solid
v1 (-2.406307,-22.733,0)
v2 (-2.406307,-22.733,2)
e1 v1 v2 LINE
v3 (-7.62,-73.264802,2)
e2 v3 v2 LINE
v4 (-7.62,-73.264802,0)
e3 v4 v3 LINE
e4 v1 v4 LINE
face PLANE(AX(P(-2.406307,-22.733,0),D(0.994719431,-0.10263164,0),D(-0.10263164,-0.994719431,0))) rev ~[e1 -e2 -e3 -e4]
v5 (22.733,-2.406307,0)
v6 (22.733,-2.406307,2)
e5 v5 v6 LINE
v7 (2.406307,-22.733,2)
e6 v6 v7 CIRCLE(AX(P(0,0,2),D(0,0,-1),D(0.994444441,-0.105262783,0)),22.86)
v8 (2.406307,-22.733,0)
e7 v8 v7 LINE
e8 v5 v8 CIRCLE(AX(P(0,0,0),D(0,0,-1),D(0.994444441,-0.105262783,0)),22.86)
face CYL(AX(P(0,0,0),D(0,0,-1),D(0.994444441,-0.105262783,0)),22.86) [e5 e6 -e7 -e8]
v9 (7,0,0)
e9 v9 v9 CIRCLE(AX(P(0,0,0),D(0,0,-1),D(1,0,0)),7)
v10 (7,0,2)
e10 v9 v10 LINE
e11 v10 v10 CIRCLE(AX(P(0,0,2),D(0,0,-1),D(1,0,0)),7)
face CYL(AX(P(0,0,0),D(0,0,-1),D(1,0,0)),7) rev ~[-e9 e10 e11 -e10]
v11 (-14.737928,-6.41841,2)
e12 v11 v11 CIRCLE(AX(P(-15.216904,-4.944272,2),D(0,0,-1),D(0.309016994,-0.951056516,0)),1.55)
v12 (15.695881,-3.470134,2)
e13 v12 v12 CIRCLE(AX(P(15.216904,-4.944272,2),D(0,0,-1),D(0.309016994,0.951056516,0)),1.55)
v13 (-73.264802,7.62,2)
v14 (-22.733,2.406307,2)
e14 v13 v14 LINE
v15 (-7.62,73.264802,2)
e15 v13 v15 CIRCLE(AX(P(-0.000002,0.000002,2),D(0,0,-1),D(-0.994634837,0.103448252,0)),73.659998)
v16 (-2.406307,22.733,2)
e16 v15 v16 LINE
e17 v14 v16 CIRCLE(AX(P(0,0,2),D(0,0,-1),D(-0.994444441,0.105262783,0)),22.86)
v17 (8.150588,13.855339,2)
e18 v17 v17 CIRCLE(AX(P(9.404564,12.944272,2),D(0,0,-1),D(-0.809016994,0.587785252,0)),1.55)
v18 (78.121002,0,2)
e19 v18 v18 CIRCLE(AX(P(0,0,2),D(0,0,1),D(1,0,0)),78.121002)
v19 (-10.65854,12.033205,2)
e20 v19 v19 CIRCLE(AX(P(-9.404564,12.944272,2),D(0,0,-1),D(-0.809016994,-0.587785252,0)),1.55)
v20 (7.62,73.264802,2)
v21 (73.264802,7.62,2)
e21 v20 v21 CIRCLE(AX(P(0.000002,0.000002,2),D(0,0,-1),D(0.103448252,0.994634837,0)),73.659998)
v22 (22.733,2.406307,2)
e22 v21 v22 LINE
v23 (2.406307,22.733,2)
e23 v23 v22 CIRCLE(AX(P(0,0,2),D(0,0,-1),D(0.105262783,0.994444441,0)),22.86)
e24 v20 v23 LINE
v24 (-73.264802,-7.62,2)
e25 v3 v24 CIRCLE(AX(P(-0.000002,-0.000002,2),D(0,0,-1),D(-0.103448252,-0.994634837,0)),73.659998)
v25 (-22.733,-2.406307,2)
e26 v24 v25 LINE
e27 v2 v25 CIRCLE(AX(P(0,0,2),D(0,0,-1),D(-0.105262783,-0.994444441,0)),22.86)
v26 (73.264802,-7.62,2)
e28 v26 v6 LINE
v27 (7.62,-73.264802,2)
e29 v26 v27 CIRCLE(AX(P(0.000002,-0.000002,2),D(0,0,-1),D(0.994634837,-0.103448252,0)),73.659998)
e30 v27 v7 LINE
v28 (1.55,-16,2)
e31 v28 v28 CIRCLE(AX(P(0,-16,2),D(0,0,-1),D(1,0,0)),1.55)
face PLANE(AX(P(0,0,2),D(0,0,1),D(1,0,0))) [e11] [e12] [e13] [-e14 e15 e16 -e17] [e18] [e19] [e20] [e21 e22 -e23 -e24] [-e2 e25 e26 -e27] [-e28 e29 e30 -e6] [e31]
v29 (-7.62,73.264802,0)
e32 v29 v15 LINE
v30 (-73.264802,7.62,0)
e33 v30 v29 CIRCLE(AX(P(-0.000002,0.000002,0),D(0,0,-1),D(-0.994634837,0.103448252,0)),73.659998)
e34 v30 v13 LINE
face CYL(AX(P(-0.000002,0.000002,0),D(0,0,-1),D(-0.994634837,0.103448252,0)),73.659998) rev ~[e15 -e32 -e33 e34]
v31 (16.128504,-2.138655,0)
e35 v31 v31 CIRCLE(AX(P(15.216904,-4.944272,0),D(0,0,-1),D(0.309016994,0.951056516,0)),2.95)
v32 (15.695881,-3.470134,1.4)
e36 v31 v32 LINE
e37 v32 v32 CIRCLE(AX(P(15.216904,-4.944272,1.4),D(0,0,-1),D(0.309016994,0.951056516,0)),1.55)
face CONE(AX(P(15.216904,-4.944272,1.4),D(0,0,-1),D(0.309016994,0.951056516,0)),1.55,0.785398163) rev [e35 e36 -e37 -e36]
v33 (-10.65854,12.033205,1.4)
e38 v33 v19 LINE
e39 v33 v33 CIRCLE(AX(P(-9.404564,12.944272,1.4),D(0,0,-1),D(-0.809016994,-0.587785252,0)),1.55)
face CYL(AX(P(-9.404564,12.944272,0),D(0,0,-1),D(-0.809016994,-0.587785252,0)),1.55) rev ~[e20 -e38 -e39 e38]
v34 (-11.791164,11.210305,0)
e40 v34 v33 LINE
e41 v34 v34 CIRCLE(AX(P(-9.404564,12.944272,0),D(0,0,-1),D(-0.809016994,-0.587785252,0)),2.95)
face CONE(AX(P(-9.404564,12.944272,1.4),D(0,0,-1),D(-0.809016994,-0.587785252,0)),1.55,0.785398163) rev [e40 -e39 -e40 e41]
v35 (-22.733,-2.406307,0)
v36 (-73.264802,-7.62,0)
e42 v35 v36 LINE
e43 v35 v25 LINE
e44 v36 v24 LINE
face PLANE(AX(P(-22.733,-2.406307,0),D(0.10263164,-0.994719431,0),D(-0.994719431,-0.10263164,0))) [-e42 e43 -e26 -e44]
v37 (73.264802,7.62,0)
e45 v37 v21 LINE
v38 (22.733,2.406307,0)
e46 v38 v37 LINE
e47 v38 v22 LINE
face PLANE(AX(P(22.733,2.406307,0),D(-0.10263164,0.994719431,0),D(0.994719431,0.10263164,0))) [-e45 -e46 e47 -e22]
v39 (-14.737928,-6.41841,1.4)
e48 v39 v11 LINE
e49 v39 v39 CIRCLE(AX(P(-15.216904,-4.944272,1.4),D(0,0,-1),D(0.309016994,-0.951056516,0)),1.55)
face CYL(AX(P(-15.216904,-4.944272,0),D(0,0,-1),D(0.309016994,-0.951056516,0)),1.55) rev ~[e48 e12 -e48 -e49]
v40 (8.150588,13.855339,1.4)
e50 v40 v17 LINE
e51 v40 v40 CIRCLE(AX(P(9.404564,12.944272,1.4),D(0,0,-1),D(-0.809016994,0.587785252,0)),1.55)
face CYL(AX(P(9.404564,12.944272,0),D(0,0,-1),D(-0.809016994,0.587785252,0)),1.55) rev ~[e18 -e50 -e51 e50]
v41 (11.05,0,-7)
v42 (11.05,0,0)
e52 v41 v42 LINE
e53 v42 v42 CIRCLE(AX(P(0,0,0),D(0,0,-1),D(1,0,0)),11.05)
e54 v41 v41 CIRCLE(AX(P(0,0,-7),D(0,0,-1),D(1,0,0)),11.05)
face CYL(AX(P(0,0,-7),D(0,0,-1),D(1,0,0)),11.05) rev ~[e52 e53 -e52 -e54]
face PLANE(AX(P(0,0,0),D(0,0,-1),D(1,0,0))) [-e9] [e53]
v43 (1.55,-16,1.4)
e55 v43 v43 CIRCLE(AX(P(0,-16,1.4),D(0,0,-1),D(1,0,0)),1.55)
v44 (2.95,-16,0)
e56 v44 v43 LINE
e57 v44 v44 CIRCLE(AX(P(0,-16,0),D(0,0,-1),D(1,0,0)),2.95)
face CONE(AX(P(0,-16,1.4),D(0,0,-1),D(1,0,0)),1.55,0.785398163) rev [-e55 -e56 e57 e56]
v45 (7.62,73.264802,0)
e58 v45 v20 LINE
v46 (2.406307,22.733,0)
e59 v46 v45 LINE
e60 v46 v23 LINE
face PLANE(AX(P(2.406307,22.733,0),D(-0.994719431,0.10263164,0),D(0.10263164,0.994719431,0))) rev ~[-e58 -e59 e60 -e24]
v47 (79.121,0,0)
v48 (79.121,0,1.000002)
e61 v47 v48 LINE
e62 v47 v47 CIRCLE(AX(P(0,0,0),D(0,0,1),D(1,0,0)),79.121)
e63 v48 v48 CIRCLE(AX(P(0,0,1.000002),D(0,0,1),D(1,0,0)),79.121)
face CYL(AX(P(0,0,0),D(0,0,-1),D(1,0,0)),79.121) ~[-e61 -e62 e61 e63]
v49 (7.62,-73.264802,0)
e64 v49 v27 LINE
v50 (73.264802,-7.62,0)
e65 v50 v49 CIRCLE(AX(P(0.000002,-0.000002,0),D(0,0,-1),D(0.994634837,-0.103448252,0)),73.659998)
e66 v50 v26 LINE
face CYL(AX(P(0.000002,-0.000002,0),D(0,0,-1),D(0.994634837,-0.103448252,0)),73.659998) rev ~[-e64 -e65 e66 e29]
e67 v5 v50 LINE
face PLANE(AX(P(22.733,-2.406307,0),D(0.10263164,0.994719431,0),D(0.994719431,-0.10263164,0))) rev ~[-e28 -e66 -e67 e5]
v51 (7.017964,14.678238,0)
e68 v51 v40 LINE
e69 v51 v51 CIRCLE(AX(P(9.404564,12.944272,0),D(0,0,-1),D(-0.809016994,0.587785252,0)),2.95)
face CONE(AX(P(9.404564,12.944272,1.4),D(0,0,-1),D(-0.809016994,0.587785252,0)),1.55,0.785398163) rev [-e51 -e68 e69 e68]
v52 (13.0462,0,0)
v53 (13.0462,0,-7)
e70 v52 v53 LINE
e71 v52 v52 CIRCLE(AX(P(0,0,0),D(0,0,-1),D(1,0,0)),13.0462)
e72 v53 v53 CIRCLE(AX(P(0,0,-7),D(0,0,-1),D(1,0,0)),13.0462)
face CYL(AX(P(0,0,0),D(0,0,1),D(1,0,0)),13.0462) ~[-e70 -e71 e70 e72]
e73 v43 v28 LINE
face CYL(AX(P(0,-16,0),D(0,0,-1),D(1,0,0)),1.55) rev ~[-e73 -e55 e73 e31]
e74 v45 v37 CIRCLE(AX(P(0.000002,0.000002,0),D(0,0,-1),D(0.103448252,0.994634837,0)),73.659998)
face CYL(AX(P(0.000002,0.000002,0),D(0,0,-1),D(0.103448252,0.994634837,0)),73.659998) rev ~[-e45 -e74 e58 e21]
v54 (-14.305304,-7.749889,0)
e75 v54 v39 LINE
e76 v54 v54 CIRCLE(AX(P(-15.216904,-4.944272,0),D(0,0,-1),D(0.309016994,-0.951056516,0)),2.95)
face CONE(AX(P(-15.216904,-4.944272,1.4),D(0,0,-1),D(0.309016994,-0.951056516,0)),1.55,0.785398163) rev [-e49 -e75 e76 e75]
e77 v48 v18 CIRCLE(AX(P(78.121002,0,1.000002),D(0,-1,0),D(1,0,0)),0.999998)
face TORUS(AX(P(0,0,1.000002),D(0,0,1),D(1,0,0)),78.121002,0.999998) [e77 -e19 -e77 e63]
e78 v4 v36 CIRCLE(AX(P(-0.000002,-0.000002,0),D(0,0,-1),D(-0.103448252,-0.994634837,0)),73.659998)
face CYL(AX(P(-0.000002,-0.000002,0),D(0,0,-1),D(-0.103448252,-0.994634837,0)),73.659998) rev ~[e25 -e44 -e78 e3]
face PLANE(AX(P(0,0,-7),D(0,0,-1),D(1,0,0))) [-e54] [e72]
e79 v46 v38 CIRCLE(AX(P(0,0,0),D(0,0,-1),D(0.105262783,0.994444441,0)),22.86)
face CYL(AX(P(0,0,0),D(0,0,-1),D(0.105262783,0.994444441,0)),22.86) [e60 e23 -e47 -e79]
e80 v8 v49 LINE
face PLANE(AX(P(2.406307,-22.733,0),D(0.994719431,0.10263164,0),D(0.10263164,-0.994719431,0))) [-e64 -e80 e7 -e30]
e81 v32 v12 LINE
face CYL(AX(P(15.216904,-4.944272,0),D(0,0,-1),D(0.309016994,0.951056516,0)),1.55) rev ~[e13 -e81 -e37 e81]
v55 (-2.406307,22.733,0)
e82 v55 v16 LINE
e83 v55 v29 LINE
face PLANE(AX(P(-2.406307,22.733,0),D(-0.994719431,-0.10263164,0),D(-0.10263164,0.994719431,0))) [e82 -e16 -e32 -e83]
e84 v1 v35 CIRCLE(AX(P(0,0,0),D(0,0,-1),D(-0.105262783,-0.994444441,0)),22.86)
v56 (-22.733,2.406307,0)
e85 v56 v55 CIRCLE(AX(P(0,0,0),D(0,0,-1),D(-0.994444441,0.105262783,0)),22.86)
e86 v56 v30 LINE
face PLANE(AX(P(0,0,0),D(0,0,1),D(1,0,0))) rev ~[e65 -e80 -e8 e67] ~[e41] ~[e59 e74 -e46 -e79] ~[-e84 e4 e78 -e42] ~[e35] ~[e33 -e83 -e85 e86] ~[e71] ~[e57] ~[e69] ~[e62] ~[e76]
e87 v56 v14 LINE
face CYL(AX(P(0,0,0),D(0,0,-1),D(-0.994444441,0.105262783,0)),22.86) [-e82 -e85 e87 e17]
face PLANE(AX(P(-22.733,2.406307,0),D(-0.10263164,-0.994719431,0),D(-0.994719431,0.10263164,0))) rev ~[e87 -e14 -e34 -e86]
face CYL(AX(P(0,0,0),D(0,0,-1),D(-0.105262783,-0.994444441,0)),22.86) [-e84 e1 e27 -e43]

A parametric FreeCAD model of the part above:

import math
import FreeCAD as App
import Part
import Sketcher
from FreeCAD import Vector
Q = App.Units.Quantity


def edges_at(feature, points):
    """Names of the edges that pass closest to the given points."""
    edges = feature.Shape.Edges
    near = lambda p: min(range(len(edges)), key=lambda i: edges[i].distToShape(Part.Vertex(*p))[0])
    return sorted({f"Edge{near(p) + 1}" for p in points})

doc = App.newDocument("Part")
body = doc.addObject("PartDesign::Body", "Body")

# Sketch on XY plane
sketch1 = body.newObject("Sketcher::SketchObject", "Sketch")
sketch1.AttachmentSupport = (doc.getObject("XY_Plane"), [""])
sketch1.MapMode = "FlatFace"
sketch1.addGeometry(Part.Circle(Vector(0, 0, 0), Vector(0, 0, 1), 79.121), False)
sketch1.addConstraint([
    Sketcher.Constraint("Coincident", 0, 3, -1, 1),
    Sketcher.Constraint("Diameter", 0, Q("158.242 mm")),
])
pad1 = body.newObject("PartDesign::Pad", "Pad")
pad1.Profile = sketch1
pad1.Length = 2

# Sketch on XY plane
sketch2 = body.newObject("Sketcher::SketchObject", "Sketch001")
sketch2.AttachmentSupport = (doc.getObject("XY_Plane"), [""])
sketch2.MapMode = "FlatFace"
sketch2.addGeometry(Part.Circle(Vector(0, 0, 0), Vector(0, 0, 1), 13.0462), False)
sketch2.addConstraint([
    Sketcher.Constraint("Coincident", 0, 3, -1, 1),
    Sketcher.Constraint("Diameter", 0, Q("26.0924 mm")),
])
pad2 = body.newObject("PartDesign::Pad", "Pad001")
pad2.Profile = sketch2
pad2.Length = 7
pad2.Reversed = True

# Sketch on XY plane
sketch3 = body.newObject("Sketcher::SketchObject", "Sketch002")
sketch3.AttachmentSupport = (doc.getObject("XY_Plane"), [""])
sketch3.MapMode = "FlatFace"
sketch3.AttachmentOffset = App.Placement(Vector(0, 0, -7), App.Rotation())
sketch3.addGeometry(Part.Circle(Vector(0, 0, 0), Vector(0, 0, 1), 11.05), False)
sketch3.addConstraint([
    Sketcher.Constraint("Coincident", 0, 3, -1, 1),
    Sketcher.Constraint("Diameter", 0, Q("22.1 mm")),
])
pocket1 = body.newObject("PartDesign::Pocket", "Pocket")
pocket1.Profile = sketch3
pocket1.Length = 7
pocket1.Reversed = True

# Sketch on XY plane
sketch4 = body.newObject("Sketcher::SketchObject", "Sketch003")
sketch4.AttachmentSupport = (doc.getObject("XY_Plane"), [""])
sketch4.MapMode = "FlatFace"
sketch4.addGeometry(Part.Circle(Vector(0, 0, 0), Vector(0, 0, 1), 7), False)
sketch4.addConstraint([
    Sketcher.Constraint("Coincident", 0, 3, -1, 1),
    Sketcher.Constraint("Diameter", 0, Q("14 mm")),
])
pocket2 = body.newObject("PartDesign::Pocket", "Pocket001")
pocket2.Profile = sketch4
pocket2.Length = 5.0038
pocket2.Reversed = True

# Sketch on XY plane
sketch5 = body.newObject("Sketcher::SketchObject", "Sketch004")
sketch5.AttachmentSupport = (doc.getObject("XY_Plane"), [""])
sketch5.MapMode = "FlatFace"
sketch5.addGeometry(Part.Circle(Vector(0, -16, 0), Vector(0, 0, 1), 1.55), False)
sketch5.addConstraint([
    Sketcher.Constraint("PointOnObject", 0, 3, -2),
    Sketcher.Constraint("Diameter", 0, Q("3.1 mm")),
    Sketcher.Constraint("DistanceY", 0, 3, -1, 1, Q("16 mm")),
])
pocket3 = body.newObject("PartDesign::Pocket", "Pocket002")
pocket3.Profile = sketch5
pocket3.Length = 5.0038
pocket3.Reversed = True
doc.recompute()

polarpattern = body.newObject("PartDesign::PolarPattern", "PolarPattern")
polarpattern.Originals = [pocket3]
polarpattern.Axis = (doc.getObject("Z_Axis"), [""])
polarpattern.Angle = 360
polarpattern.Occurrences = 5
body.Tip = polarpattern
doc.recompute()

chamfer = body.newObject("PartDesign::Chamfer", "Chamfer")
chamfer.Base = (polarpattern, edges_at(polarpattern, [
    (-1.55, -16, 0),
    (14.738, -6.418, 0),
    (-15.696, -3.47, 0),
    (-8.151, 13.855, 0),
    (10.659, 12.033, 0),
]))
chamfer.Size = 1.4

# Sketch on XY plane
sketch6 = body.newObject("Sketcher::SketchObject", "Sketch005")
sketch6.AttachmentSupport = (doc.getObject("XY_Plane"), [""])
sketch6.MapMode = "FlatFace"
sketch6.addGeometry([
    Part.ArcOfCircle(Part.Circle(Vector(0, 0, 0), Vector(0, 0, 1), 22.86), math.radians(-173.957693), math.radians(-96.042307)),
    Part.LineSegment(Vector(-2.406307, -22.733, 0), Vector(-7.62, -73.264802, 0)),
    Part.ArcOfCircle(Part.Circle(Vector(-0.000002, -0.000002, 0), Vector(0, 0, 1), 73.659998), math.radians(-174.062229), math.radians(-95.937771)),
    Part.LineSegment(Vector(-73.264802, -7.62, 0), Vector(-22.733, -2.406307, 0)),
], False)
sketch6.addConstraint([
    Sketcher.Constraint("Coincident", 0, 2, 1, 1),
    Sketcher.Constraint("Coincident", 1, 2, 2, 2),
    Sketcher.Constraint("Coincident", 2, 1, 3, 1),
    Sketcher.Constraint("Coincident", 3, 2, 0, 1),
    Sketcher.Constraint("Coincident", 0, 3, -1, 1),
    Sketcher.Constraint("Coincident", 2, 3, -1, 1),
    Sketcher.Constraint("Radius", 0, Q("22.86 mm")),
    Sketcher.Constraint("DistanceX", 1, 2, -1, 1, Q("7.62 mm")),
    Sketcher.Constraint("DistanceY", 2, 1, -1, 1, Q("7.62 mm")),
    Sketcher.Constraint("DistanceY", 0, 2, -1, 1, Q("22.733 mm")),
    Sketcher.Constraint("DistanceX", 3, 2, -1, 1, Q("22.733 mm")),
    Sketcher.Constraint("Radius", 2, Q("73.659998 mm")),
])
pocket4 = body.newObject("PartDesign::Pocket", "Pocket003")
pocket4.Profile = sketch6
pocket4.Length = 5.0038
pocket4.Reversed = True
doc.recompute()

polarpattern2 = body.newObject("PartDesign::PolarPattern", "PolarPattern001")
polarpattern2.Originals = [pocket4]
polarpattern2.Axis = (doc.getObject("Z_Axis"), [""])
polarpattern2.Angle = 360
polarpattern2.Occurrences = 4
body.Tip = polarpattern2
doc.recompute()

fillet = body.newObject("PartDesign::Fillet", "Fillet")
fillet.Base = (polarpattern2, edges_at(polarpattern2, [(-79.121, 0, 2)]))
fillet.Radius = 0.999998

doc.recompute()
